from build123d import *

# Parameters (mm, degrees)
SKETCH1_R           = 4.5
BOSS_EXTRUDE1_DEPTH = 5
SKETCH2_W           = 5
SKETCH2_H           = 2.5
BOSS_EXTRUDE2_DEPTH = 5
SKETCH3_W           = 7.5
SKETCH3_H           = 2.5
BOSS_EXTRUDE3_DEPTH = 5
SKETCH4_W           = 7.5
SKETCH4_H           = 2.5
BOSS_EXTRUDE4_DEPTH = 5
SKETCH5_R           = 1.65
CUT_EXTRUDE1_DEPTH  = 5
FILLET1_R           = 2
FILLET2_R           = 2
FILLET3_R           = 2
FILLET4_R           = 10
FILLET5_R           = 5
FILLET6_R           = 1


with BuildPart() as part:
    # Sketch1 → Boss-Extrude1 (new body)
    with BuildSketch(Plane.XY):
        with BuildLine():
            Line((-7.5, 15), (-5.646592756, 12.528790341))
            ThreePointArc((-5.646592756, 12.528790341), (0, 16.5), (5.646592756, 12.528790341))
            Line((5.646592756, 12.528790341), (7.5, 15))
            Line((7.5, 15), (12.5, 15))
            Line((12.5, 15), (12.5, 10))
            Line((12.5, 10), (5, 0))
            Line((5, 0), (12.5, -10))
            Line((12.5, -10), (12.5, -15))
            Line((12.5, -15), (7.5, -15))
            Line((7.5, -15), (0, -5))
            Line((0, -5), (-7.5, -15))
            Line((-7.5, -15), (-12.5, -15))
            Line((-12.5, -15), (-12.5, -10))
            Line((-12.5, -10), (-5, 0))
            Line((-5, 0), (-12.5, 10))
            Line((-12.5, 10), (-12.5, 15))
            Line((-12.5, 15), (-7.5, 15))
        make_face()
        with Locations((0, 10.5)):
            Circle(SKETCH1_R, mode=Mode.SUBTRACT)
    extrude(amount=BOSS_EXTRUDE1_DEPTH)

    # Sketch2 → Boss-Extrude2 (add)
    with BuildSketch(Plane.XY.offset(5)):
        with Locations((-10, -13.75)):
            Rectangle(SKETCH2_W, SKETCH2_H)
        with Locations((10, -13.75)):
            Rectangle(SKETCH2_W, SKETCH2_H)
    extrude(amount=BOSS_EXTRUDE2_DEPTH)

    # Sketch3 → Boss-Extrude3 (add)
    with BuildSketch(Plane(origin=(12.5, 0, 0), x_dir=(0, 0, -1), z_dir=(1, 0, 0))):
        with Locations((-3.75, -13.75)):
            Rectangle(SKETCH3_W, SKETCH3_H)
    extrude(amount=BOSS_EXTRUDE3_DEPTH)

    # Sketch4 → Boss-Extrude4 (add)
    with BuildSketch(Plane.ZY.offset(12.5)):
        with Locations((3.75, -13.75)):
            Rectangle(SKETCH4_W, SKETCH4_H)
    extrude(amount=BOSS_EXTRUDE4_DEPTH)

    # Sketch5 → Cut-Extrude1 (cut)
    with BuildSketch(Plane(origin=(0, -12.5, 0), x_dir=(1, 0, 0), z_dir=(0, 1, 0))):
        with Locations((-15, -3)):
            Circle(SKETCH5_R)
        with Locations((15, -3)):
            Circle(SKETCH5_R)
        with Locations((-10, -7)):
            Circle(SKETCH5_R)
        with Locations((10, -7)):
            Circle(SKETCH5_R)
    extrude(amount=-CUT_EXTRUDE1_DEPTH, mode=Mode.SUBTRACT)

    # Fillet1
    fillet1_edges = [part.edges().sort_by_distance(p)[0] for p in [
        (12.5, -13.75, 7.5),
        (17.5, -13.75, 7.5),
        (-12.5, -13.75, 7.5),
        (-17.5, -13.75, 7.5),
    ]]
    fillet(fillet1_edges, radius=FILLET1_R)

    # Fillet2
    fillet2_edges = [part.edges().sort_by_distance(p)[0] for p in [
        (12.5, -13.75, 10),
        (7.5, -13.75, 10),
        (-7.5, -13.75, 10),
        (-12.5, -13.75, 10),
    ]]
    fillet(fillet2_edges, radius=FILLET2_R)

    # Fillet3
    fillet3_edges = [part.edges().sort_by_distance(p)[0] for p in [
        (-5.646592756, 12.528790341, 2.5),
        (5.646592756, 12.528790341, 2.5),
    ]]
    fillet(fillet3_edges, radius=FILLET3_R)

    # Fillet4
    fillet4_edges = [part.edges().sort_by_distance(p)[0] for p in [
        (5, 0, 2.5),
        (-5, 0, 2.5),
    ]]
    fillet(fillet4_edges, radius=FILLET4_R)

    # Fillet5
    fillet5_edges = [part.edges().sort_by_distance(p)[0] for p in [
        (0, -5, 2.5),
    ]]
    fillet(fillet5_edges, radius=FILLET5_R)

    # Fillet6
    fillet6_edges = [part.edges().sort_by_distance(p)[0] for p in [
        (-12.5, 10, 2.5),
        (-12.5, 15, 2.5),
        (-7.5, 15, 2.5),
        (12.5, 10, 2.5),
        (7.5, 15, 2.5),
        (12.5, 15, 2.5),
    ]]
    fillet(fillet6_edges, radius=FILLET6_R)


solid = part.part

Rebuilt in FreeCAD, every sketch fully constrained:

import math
import FreeCAD as App
import Part
import Sketcher
Q = App.Units.Quantity


def edges_at(feature, points):
    """Names of the edges that pass closest to the given points."""
    edges = feature.Shape.Edges
    near = lambda p: min(range(len(edges)), key=lambda i: edges[i].distToShape(Part.Vertex(*p))[0])
    return sorted({f"Edge{near(p) + 1}" for p in points})


def add_polygon(sketch, points):
    """Adds a closed chain of lines whose ends are joined by coincident constraints."""
    first, n = sketch.GeometryCount, len(points)
    for a, b in zip(points, points[1:] + points[:1]):
        sketch.addGeometry(Part.LineSegment(App.Vector(*a, 0), App.Vector(*b, 0)), False)
    for i in range(n):
        sketch.addConstraint(Sketcher.Constraint("Coincident", first + i, 2, first + (i + 1) % n, 1))

doc = App.newDocument("Part")
params = doc.addObject("Spreadsheet::Sheet", "Params")
for row, (alias, value) in enumerate([
    ("sketch1_diameter", "9 mm"),
    ("sketch1_radius", "6 mm"),
    ("sketch1_width", "5 mm"),
    ("pad1_length", "5 mm"),
    ("sketch2_width", "5 mm"),
    ("sketch2_height", "2.5 mm"),
    ("pad2_length", "5 mm"),
    ("sketch3_width", "2.5 mm"),
    ("sketch3_height", "7.5 mm"),
    ("pad3_length", "5 mm"),
    ("sketch4_width", "2.5 mm"),
    ("sketch4_height", "7.5 mm"),
    ("pad4_length", "5 mm"),
    ("sketch5_diameter", "3.3 mm"),
    ("pocket1_length", "5 mm"),
    ("fillet_radius", "2 mm"),
    ("fillet2_radius", "2 mm"),
    ("fillet3_radius", "2 mm"),
    ("fillet4_radius", "10 mm"),
    ("fillet5_radius", "5 mm"),
    ("fillet6_radius", "1 mm"),
], start=1):
    params.set(f"A{row}", alias)
    params.set(f"B{row}", "=" + value)
    params.setAlias(f"B{row}", alias)

body = doc.addObject("PartDesign::Body", "Body")

# Sketch on XY plane
sketch1 = body.newObject("Sketcher::SketchObject", "Sketch")
sketch1.AttachmentSupport = (doc.getObject("XY_Plane"), [""])
sketch1.MapMode = "FlatFace"
sketch1.addGeometry([
    Part.LineSegment(App.Vector(-5.6, 12.5, 0), App.Vector(-7.5, 15, 0)),  # 0
    Part.LineSegment(App.Vector(-7.5, 15, 0), App.Vector(-12.5, 15, 0)),  # 1
    Part.LineSegment(App.Vector(-12.5, 15, 0), App.Vector(-12.5, 10, 0)),  # 2
    Part.LineSegment(App.Vector(-12.5, 10, 0), App.Vector(-5, 0, 0)),  # 3
    Part.LineSegment(App.Vector(-5, 0, 0), App.Vector(-12.5, -10, 0)),  # 4
    Part.LineSegment(App.Vector(-12.5, -10, 0), App.Vector(-12.5, -15, 0)),  # 5
    Part.LineSegment(App.Vector(-12.5, -15, 0), App.Vector(-7.5, -15, 0)),  # 6
    Part.LineSegment(App.Vector(-7.5, -15, 0), App.Vector(0, -5, 0)),  # 7
    Part.LineSegment(App.Vector(0, -5, 0), App.Vector(7.5, -15, 0)),  # 8
    Part.LineSegment(App.Vector(7.5, -15, 0), App.Vector(12.5, -15, 0)),  # 9
    Part.LineSegment(App.Vector(12.5, -15, 0), App.Vector(12.5, -10, 0)),  # 10
    Part.LineSegment(App.Vector(12.5, -10, 0), App.Vector(5, 0, 0)),  # 11
    Part.LineSegment(App.Vector(5, 0, 0), App.Vector(12.5, 10, 0)),  # 12
    Part.LineSegment(App.Vector(12.5, 10, 0), App.Vector(12.5, 15, 0)),  # 13
    Part.LineSegment(App.Vector(12.5, 15, 0), App.Vector(7.5, 15, 0)),  # 14
    Part.LineSegment(App.Vector(7.5, 15, 0), App.Vector(5.6, 12.5, 0)),  # 15
    Part.ArcOfCircle(Part.Circle(App.Vector(0, 10.5, 0), App.Vector(0, 0, 1), 6), math.radians(20), math.radians(160)),  # 16
    Part.Circle(App.Vector(0, 10.5, 0), App.Vector(0, 0, 1), 4.5),  # 17
], False)
sketch1.addConstraint([
    Sketcher.Constraint("Coincident", 0, 2, 1, 1),
    Sketcher.Constraint("Coincident", 1, 2, 2, 1),
    Sketcher.Constraint("Coincident", 2, 2, 3, 1),
    Sketcher.Constraint("Coincident", 3, 2, 4, 1),
    Sketcher.Constraint("Coincident", 4, 2, 5, 1),
    Sketcher.Constraint("Coincident", 5, 2, 6, 1),
    Sketcher.Constraint("Coincident", 6, 2, 7, 1),
    Sketcher.Constraint("Coincident", 7, 2, 8, 1),
    Sketcher.Constraint("Coincident", 8, 2, 9, 1),
    Sketcher.Constraint("Coincident", 9, 2, 10, 1),
    Sketcher.Constraint("Coincident", 10, 2, 11, 1),
    Sketcher.Constraint("Coincident", 11, 2, 12, 1),
    Sketcher.Constraint("Coincident", 12, 2, 13, 1),
    Sketcher.Constraint("Coincident", 13, 2, 14, 1),
    Sketcher.Constraint("Coincident", 14, 2, 15, 1),
    Sketcher.Constraint("Coincident", 15, 2, 16, 1),
    Sketcher.Constraint("Coincident", 16, 2, 0, 1),
    Sketcher.Constraint("Horizontal", 1),
    Sketcher.Constraint("Vertical", 2),
    Sketcher.Constraint("Vertical", 5),
    Sketcher.Constraint("Horizontal", 6),
    Sketcher.Constraint("Horizontal", 9),
    Sketcher.Constraint("Vertical", 10),
    Sketcher.Constraint("Vertical", 13),
    Sketcher.Constraint("Horizontal", 14),
    Sketcher.Constraint("Coincident", 17, 3, 16, 3),
    Sketcher.Constraint("Symmetric", 0, 2, 8, 2, -1, 1),
    Sketcher.Constraint("Symmetric", 2, 2, 10, 2, -1, 1),
    Sketcher.Constraint("Symmetric", 3, 2, 11, 2, -1, 1),
    Sketcher.Constraint("Symmetric", 4, 2, 12, 2, -1, 1),
    Sketcher.Constraint("Symmetric", 6, 2, 14, 2, -1, 1),
    Sketcher.Constraint("Symmetric", 6, 2, 8, 2, -2),
    Sketcher.Constraint("Symmetric", 4, 2, 10, 2, -2),
    Sketcher.Constraint("Symmetric", 15, 2, 16, 2, -2),
    Sketcher.Constraint("PointOnObject", 3, 2, -1),
    Sketcher.Constraint("PointOnObject", 7, 2, -2),
    Sketcher.Constraint("Parallel", 0, 3),
    Sketcher.Constraint("Parallel", 4, 7),
    Sketcher.Constraint("Equal", 14, 2),
    Sketcher.Constraint("Equal", 4, 7),
    Sketcher.Constraint("Diameter", 17, Q("9 mm")),
    Sketcher.Constraint("Radius", 16, Q("6 mm")),
    Sketcher.Constraint("DistanceX", 1, 2, 1, 1, Q("5 mm")),
    Sketcher.Constraint("DistanceY", -1, 1, 0, 2, Q("15 mm")),
    Sketcher.Constraint("DistanceX", 6, 2, 8, 2, Q("15 mm")),
    Sketcher.Constraint("DistanceY", -1, 1, 16, 3, Q("10.5 mm")),
])
sketch1.setExpression("Constraints[40]", "Params.sketch1_diameter")
sketch1.setExpression("Constraints[41]", "Params.sketch1_radius")
sketch1.setExpression("Constraints[42]", "Params.sketch1_width")
pad1 = body.newObject("PartDesign::Pad", "Pad")
pad1.Profile = sketch1
pad1.setExpression("Length", "Params.pad1_length")

# Sketch on XY plane
sketch2 = body.newObject("Sketcher::SketchObject", "Sketch001")
sketch2.AttachmentSupport = (doc.getObject("XY_Plane"), [""])
sketch2.MapMode = "FlatFace"
sketch2.AttachmentOffset = App.Placement(App.Vector(0, 0, 5), App.Rotation())
add_polygon(sketch2, [(-12.5, -12.5), (-12.5, -15), (-7.5, -15), (-7.5, -12.5)])  # lines 0-3
add_polygon(sketch2, [(7.5, -12.5), (7.5, -15), (12.5, -15), (12.5, -12.5)])  # lines 4-7
sketch2.addConstraint([
    Sketcher.Constraint("Vertical", 0),
    Sketcher.Constraint("Horizontal", 1),
    Sketcher.Constraint("Vertical", 2),
    Sketcher.Constraint("Horizontal", 3),
    Sketcher.Constraint("Vertical", 4),
    Sketcher.Constraint("Horizontal", 5),
    Sketcher.Constraint("Vertical", 6),
    Sketcher.Constraint("Horizontal", 7),
    Sketcher.Constraint("Symmetric", 1, 2, 4, 2, -2),
    Sketcher.Constraint("Symmetric", 3, 2, 6, 2, -2),
    Sketcher.Constraint("DistanceX", 1, 1, 1, 2, Q("5 mm")),
    Sketcher.Constraint("DistanceY", 0, 2, 0, 1, Q("2.5 mm")),
    Sketcher.Constraint("DistanceY", 0, 2, -1, 1, Q("15 mm")),
    Sketcher.Constraint("DistanceX", 1, 2, 4, 2, Q("15 mm")),
])
sketch2.setExpression("Constraints[18]", "Params.sketch2_width")
sketch2.setExpression("Constraints[19]", "Params.sketch2_height")
pad2 = body.newObject("PartDesign::Pad", "Pad001")
pad2.Profile = sketch2
pad2.setExpression("Length", "Params.pad2_length")

# Sketch on YZ plane
sketch3 = body.newObject("Sketcher::SketchObject", "Sketch002")
sketch3.AttachmentSupport = (doc.getObject("YZ_Plane"), [""])
sketch3.MapMode = "FlatFace"
sketch3.AttachmentOffset = App.Placement(App.Vector(0, 0, 12.5), App.Rotation())
add_polygon(sketch3, [(-12.5, 7.5), (-15, 7.5), (-15, 0), (-12.5, 0)])  # lines 0-3
sketch3.addConstraint([
    Sketcher.Constraint("Horizontal", 0),
    Sketcher.Constraint("Vertical", 1),
    Sketcher.Constraint("Horizontal", 2),
    Sketcher.Constraint("Vertical", 3),
    Sketcher.Constraint("PointOnObject", 1, 2, -1),
    Sketcher.Constraint("DistanceX", 0, 2, 0, 1, Q("2.5 mm")),
    Sketcher.Constraint("DistanceY", 1, 2, 1, 1, Q("7.5 mm")),
    Sketcher.Constraint("DistanceX", 0, 2, -1, 1, Q("15 mm")),
])
sketch3.setExpression("Constraints[9]", "Params.sketch3_width")
sketch3.setExpression("Constraints[10]", "Params.sketch3_height")
pad3 = body.newObject("PartDesign::Pad", "Pad002")
pad3.Profile = sketch3
pad3.setExpression("Length", "Params.pad3_length")

# Sketch on YZ plane
sketch4 = body.newObject("Sketcher::SketchObject", "Sketch003")
sketch4.AttachmentSupport = (doc.getObject("YZ_Plane"), [""])
sketch4.MapMode = "FlatFace"
sketch4.AttachmentOffset = App.Placement(App.Vector(0, 0, -12.5), App.Rotation())
add_polygon(sketch4, [(-12.5, 0), (-15, 0), (-15, 7.5), (-12.5, 7.5)])  # lines 0-3
sketch4.addConstraint([
    Sketcher.Constraint("Horizontal", 0),
    Sketcher.Constraint("Vertical", 1),
    Sketcher.Constraint("Horizontal", 2),
    Sketcher.Constraint("Vertical", 3),
    Sketcher.Constraint("PointOnObject", 0, 2, -1),
    Sketcher.Constraint("DistanceX", 0, 2, 0, 1, Q("2.5 mm")),
    Sketcher.Constraint("DistanceY", 1, 1, 1, 2, Q("7.5 mm")),
    Sketcher.Constraint("DistanceX", 0, 2, -1, 1, Q("15 mm")),
])
sketch4.setExpression("Constraints[9]", "Params.sketch4_width")
sketch4.setExpression("Constraints[10]", "Params.sketch4_height")
pad4 = body.newObject("PartDesign::Pad", "Pad003")
pad4.Profile = sketch4
pad4.setExpression("Length", "Params.pad4_length")
pad4.Reversed = True

# Sketch on XZ plane
sketch5 = body.newObject("Sketcher::SketchObject", "Sketch004")
sketch5.AttachmentSupport = (doc.getObject("XZ_Plane"), [""])
sketch5.MapMode = "FlatFace"
sketch5.AttachmentOffset = App.Placement(App.Vector(0, 0, 12.5), App.Rotation())
sketch5.addGeometry([
    Part.Circle(App.Vector(-15, 3, 0), App.Vector(0, 0, 1), 1.6),
    Part.Circle(App.Vector(15, 3, 0), App.Vector(0, 0, 1), 1.6),
    Part.Circle(App.Vector(-10, 7, 0), App.Vector(0, 0, 1), 1.6),
    Part.Circle(App.Vector(10, 7, 0), App.Vector(0, 0, 1), 1.6),
], False)
sketch5.addConstraint([
    Sketcher.Constraint("Equal", 0, 1),
    Sketcher.Constraint("Equal", 1, 2),
    Sketcher.Constraint("Equal", 2, 3),
    Sketcher.Constraint("Symmetric", 0, 3, 1, 3, -2),
    Sketcher.Constraint("Symmetric", 2, 3, 3, 3, -2),
    Sketcher.Constraint("Diameter", 0, Q("3.3 mm")),
    Sketcher.Constraint("DistanceX", 0, 3, -1, 1, Q("15 mm")),
    Sketcher.Constraint("DistanceY", -1, 1, 0, 3, Q("3 mm")),
    Sketcher.Constraint("DistanceX", 2, 3, -1, 1, Q("10 mm")),
    Sketcher.Constraint("DistanceY", -1, 1, 2, 3, Q("7 mm")),
])
sketch5.setExpression("Constraints[5]", "Params.sketch5_diameter")
pocket1 = body.newObject("PartDesign::Pocket", "Pocket")
pocket1.Profile = sketch5
pocket1.setExpression("Length", "Params.pocket1_length")
pocket1.Reversed = True
doc.recompute()

fillet = body.newObject("PartDesign::Fillet", "Fillet")
fillet.Base = (pocket1, edges_at(pocket1, [
    (12.5, -13.75, 7.5),
    (17.5, -13.75, 7.5),
    (-12.5, -13.75, 7.5),
    (-17.5, -13.75, 7.5),
]))
fillet.setExpression("Radius", "Params.fillet_radius")
doc.recompute()

fillet2 = body.newObject("PartDesign::Fillet", "Fillet001")
fillet2.Base = (fillet, edges_at(fillet, [
    (12.5, -13.75, 10),
    (7.5, -13.75, 10),
    (-7.5, -13.75, 10),
    (-12.5, -13.75, 10),
]))
fillet2.setExpression("Radius", "Params.fillet2_radius")
doc.recompute()

fillet3 = body.newObject("PartDesign::Fillet", "Fillet002")
fillet3.Base = (fillet2, edges_at(fillet2, [(-5.647, 12.529, 2.5), (5.647, 12.529, 2.5)]))
fillet3.setExpression("Radius", "Params.fillet3_radius")
doc.recompute()

fillet4 = body.newObject("PartDesign::Fillet", "Fillet003")
fillet4.Base = (fillet3, edges_at(fillet3, [(5, 0, 2.5), (-5, 0, 2.5)]))
fillet4.setExpression("Radius", "Params.fillet4_radius")
doc.recompute()

fillet5 = body.newObject("PartDesign::Fillet", "Fillet004")
fillet5.Base = (fillet4, edges_at(fillet4, [(0, -5, 2.5)]))
fillet5.setExpression("Radius", "Params.fillet5_radius")
doc.recompute()

fillet6 = body.newObject("PartDesign::Fillet", "Fillet005")
fillet6.Base = (fillet5, edges_at(fillet5, [
    (-12.5, 10, 2.5),
    (-12.5, 15, 2.5),
    (-7.5, 15, 2.5),
    (12.5, 10, 2.5),
    (7.5, 15, 2.5),
    (12.5, 15, 2.5),
]))
fillet6.setExpression("Radius", "Params.fillet6_radius")

doc.recompute()
